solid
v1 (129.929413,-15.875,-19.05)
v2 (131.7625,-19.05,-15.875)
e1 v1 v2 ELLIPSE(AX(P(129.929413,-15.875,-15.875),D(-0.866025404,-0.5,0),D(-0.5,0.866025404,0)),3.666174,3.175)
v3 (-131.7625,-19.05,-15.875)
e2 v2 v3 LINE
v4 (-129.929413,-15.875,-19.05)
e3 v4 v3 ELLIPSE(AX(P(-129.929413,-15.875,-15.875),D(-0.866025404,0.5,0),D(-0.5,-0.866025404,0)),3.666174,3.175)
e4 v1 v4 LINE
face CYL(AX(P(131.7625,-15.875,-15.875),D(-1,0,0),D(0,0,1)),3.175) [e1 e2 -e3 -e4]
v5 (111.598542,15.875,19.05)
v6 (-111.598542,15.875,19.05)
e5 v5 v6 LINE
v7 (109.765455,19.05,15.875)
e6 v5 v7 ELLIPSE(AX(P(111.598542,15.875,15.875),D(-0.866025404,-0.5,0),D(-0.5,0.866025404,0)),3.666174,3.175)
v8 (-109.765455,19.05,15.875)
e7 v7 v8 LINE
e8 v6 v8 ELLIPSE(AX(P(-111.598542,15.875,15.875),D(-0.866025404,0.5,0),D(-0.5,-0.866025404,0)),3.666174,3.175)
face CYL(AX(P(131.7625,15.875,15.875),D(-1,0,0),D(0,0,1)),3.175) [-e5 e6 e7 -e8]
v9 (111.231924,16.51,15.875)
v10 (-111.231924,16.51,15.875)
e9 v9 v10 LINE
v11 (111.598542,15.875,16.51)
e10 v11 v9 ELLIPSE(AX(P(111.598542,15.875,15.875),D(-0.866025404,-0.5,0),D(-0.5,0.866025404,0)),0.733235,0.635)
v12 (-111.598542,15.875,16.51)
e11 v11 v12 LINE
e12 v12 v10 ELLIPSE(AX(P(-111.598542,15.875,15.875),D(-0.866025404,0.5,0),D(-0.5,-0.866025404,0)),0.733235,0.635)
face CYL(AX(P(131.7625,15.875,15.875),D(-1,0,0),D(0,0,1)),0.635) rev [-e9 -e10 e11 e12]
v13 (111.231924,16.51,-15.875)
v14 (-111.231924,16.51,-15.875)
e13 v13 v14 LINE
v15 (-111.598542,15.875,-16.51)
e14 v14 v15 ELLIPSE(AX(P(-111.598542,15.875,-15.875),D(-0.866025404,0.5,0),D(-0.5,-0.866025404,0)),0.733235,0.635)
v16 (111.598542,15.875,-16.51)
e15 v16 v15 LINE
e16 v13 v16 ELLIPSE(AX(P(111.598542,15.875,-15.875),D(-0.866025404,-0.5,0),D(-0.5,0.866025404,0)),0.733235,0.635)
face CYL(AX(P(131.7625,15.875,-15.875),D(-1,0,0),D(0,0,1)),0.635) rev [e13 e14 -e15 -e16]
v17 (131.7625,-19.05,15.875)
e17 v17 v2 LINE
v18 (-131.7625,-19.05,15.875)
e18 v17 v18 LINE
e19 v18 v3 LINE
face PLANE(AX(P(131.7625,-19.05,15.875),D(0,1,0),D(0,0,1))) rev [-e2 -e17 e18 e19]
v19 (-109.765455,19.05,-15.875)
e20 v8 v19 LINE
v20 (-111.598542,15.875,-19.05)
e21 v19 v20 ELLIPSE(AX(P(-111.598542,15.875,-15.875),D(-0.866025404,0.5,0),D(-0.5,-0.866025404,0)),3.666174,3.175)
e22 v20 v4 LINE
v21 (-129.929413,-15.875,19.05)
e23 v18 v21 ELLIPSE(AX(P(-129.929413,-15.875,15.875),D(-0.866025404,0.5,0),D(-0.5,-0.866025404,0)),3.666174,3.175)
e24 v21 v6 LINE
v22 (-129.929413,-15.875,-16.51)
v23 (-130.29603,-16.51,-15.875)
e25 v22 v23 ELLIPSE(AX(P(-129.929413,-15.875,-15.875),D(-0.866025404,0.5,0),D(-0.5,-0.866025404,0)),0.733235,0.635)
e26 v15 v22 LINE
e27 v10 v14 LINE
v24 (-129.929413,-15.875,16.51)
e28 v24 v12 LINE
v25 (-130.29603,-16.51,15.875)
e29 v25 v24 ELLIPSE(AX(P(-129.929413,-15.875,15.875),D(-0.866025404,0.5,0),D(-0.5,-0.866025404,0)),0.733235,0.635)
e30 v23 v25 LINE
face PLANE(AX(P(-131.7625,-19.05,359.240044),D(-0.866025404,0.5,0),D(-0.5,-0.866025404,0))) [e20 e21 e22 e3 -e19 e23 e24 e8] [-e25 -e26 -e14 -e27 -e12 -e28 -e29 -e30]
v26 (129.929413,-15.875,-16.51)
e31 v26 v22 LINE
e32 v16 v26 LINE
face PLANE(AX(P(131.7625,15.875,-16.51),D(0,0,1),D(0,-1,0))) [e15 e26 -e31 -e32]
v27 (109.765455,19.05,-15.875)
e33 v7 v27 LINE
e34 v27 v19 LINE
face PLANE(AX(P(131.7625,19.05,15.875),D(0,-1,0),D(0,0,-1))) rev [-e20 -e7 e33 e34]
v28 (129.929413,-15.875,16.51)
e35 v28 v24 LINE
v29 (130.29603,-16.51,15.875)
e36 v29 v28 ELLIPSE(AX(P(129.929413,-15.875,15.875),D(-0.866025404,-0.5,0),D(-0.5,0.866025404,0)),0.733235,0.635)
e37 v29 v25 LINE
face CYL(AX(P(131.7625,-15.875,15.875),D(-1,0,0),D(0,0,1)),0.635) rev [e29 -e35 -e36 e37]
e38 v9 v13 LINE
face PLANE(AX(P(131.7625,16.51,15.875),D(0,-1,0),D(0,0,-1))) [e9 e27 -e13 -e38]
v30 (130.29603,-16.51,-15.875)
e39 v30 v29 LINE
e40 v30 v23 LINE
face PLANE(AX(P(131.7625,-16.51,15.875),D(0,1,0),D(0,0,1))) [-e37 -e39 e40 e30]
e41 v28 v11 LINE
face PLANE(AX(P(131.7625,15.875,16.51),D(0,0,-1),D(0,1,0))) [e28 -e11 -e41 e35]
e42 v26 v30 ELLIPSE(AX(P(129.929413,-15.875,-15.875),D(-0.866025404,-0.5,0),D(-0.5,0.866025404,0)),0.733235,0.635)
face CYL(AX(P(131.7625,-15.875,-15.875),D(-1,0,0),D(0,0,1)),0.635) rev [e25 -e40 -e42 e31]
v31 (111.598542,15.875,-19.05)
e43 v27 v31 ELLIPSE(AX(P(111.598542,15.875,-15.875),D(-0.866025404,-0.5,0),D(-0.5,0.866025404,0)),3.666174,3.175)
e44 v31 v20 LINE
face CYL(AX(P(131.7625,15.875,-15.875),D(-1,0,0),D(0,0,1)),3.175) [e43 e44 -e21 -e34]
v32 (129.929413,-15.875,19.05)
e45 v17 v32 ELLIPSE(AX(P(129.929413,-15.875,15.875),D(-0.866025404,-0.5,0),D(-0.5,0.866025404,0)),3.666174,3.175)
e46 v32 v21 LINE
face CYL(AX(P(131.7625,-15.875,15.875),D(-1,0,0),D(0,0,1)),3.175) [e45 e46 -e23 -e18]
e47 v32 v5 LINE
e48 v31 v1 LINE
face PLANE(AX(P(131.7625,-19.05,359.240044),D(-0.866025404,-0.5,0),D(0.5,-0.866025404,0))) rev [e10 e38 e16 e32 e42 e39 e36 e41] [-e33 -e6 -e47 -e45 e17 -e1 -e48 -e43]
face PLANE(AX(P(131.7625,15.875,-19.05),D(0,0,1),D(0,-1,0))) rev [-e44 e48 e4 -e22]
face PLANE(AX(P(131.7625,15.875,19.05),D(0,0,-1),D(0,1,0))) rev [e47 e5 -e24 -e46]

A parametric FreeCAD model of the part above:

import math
import FreeCAD as App
import Part
import Sketcher
from FreeCAD import Vector
Q = App.Units.Quantity


def add_polygon(sketch, points):
    """Adds a closed chain of lines whose ends are joined by coincident constraints."""
    first, n = sketch.GeometryCount, len(points)
    for a, b in zip(points, points[1:] + points[:1]):
        sketch.addGeometry(Part.LineSegment(App.Vector(*a, 0), App.Vector(*b, 0)), False)
    for i in range(n):
        sketch.addConstraint(Sketcher.Constraint("Coincident", first + i, 2, first + (i + 1) % n, 1))

doc = App.newDocument("Part")
body = doc.addObject("PartDesign::Body", "Body")

# Sketch on YZ plane
sketch1 = body.newObject("Sketcher::SketchObject", "Sketch")
sketch1.AttachmentSupport = (doc.getObject("YZ_Plane"), [""])
sketch1.MapMode = "FlatFace"
sketch1.addGeometry(Part.LineSegment(Vector(19.1, -15.9, 0), Vector(19.1, 15.9, 0)), False)
sketch1.addGeometry(Part.ArcOfCircle(Part.Circle(Vector(15.9, 15.9, 0), Vector(0, 0, 1), 3.2), math.radians(0), math.radians(90)), False)
sketch1.addGeometry(Part.LineSegment(Vector(15.9, 19.1, 0), Vector(-15.9, 19.1, 0)), False)
sketch1.addGeometry(Part.ArcOfCircle(Part.Circle(Vector(-15.9, 15.9, 0), Vector(0, 0, 1), 3.2), math.radians(90), math.radians(180)), False)
sketch1.addGeometry(Part.LineSegment(Vector(-19.1, 15.9, 0), Vector(-19.1, -15.9, 0)), False)
sketch1.addGeometry(Part.ArcOfCircle(Part.Circle(Vector(-15.9, -15.9, 0), Vector(0, 0, 1), 3.2), math.radians(-180), math.radians(-90)), False)
sketch1.addGeometry(Part.LineSegment(Vector(-15.9, -19.1, 0), Vector(15.9, -19.1, 0)), False)
sketch1.addGeometry(Part.ArcOfCircle(Part.Circle(Vector(15.9, -15.9, 0), Vector(0, 0, 1), 3.2), math.radians(-90), math.radians(0)), False)
sketch1.addGeometry(Part.LineSegment(Vector(16.5, 15.9, 0), Vector(16.5, -15.9, 0)), False)
sketch1.addGeometry(Part.ArcOfCircle(Part.Circle(Vector(15.9, -15.9, 0), Vector(0, 0, 1), 0.6), math.radians(-90), math.radians(0)), False)
sketch1.addGeometry(Part.LineSegment(Vector(15.9, -16.5, 0), Vector(-15.9, -16.5, 0)), False)
sketch1.addGeometry(Part.ArcOfCircle(Part.Circle(Vector(-15.9, -15.9, 0), Vector(0, 0, 1), 0.6), math.radians(180), math.radians(270)), False)
sketch1.addGeometry(Part.LineSegment(Vector(-16.5, -15.9, 0), Vector(-16.5, 15.9, 0)), False)
sketch1.addGeometry(Part.ArcOfCircle(Part.Circle(Vector(-15.9, 15.9, 0), Vector(0, 0, 1), 0.6), math.radians(90), math.radians(180)), False)
sketch1.addGeometry(Part.LineSegment(Vector(-15.9, 16.5, 0), Vector(15.9, 16.5, 0)), False)
sketch1.addGeometry(Part.ArcOfCircle(Part.Circle(Vector(15.9, 15.9, 0), Vector(0, 0, 1), 0.6), math.radians(0), math.radians(90)), False)
sketch1.addConstraint(Sketcher.Constraint("Tangent", 0, 2, 1, 1))
sketch1.addConstraint(Sketcher.Constraint("Tangent", 1, 2, 2, 1))
sketch1.addConstraint(Sketcher.Constraint("Tangent", 2, 2, 3, 1))
sketch1.addConstraint(Sketcher.Constraint("Tangent", 3, 2, 4, 1))
sketch1.addConstraint(Sketcher.Constraint("Tangent", 4, 2, 5, 1))
sketch1.addConstraint(Sketcher.Constraint("Tangent", 5, 2, 6, 1))
sketch1.addConstraint(Sketcher.Constraint("Tangent", 6, 2, 7, 1))
sketch1.addConstraint(Sketcher.Constraint("Tangent", 7, 2, 0, 1))
sketch1.addConstraint(Sketcher.Constraint("Tangent", 8, 2, 9, 2))
sketch1.addConstraint(Sketcher.Constraint("Tangent", 9, 1, 10, 1))
sketch1.addConstraint(Sketcher.Constraint("Tangent", 10, 2, 11, 2))
sketch1.addConstraint(Sketcher.Constraint("Tangent", 11, 1, 12, 1))
sketch1.addConstraint(Sketcher.Constraint("Tangent", 12, 2, 13, 2))
sketch1.addConstraint(Sketcher.Constraint("Tangent", 13, 1, 14, 1))
sketch1.addConstraint(Sketcher.Constraint("Tangent", 14, 2, 15, 2))
sketch1.addConstraint(Sketcher.Constraint("Tangent", 15, 1, 8, 1))
sketch1.addConstraint(Sketcher.Constraint("Vertical", 0))
sketch1.addConstraint(Sketcher.Constraint("Horizontal", 2))
sketch1.addConstraint(Sketcher.Constraint("Vertical", 4))
sketch1.addConstraint(Sketcher.Constraint("Horizontal", 6))
sketch1.addConstraint(Sketcher.Constraint("Vertical", 8))
sketch1.addConstraint(Sketcher.Constraint("Horizontal", 10))
sketch1.addConstraint(Sketcher.Constraint("Vertical", 12))
sketch1.addConstraint(Sketcher.Constraint("Horizontal", 14))
sketch1.addConstraint(Sketcher.Constraint("Coincident", 9, 3, 7, 3))
sketch1.addConstraint(Sketcher.Constraint("Coincident", 11, 3, 5, 3))
sketch1.addConstraint(Sketcher.Constraint("Coincident", 13, 3, 3, 3))
sketch1.addConstraint(Sketcher.Constraint("Equal", 1, 3))
sketch1.addConstraint(Sketcher.Constraint("Equal", 3, 5))
sketch1.addConstraint(Sketcher.Constraint("Equal", 5, 7))
sketch1.addConstraint(Sketcher.Constraint("Equal", 13, 15))
sketch1.addConstraint(Sketcher.Constraint("Symmetric", 1, 3, 5, 3, -1, 1))
sketch1.addConstraint(Sketcher.Constraint("Equal", 14, 0))
sketch1.addConstraint(Sketcher.Constraint("Radius", 1, Q("0.125 in")))
sketch1.addConstraint(Sketcher.Constraint("Radius", 9, Q("0.025 in")))
sketch1.addConstraint(Sketcher.Constraint("DistanceX", 2, 2, 2, 1, Q("1.25 in")))
pad1 = body.newObject("PartDesign::Pad", "Pad")
pad1.Profile = sketch1
pad1.Length = Q("10.375 in")
pad1.Midplane = True

# Sketch on XY plane
sketch2 = body.newObject("Sketcher::SketchObject", "Sketch001")
sketch2.AttachmentSupport = (doc.getObject("XY_Plane"), [""])
sketch2.MapMode = "FlatFace"
sketch2.AttachmentOffset = App.Placement(Vector(0, 0, 0.75 * 25.4), App.Rotation())
add_polygon(sketch2, [(-403, -489), (-132, -19), (-110, 19), (161, 489), (-778, 1031), (-1343, 54)])  # lines 0-5
sketch2.addConstraint(Sketcher.Constraint("Parallel", 0, 1))
sketch2.addConstraint(Sketcher.Constraint("Parallel", 1, 2))
sketch2.addConstraint(Sketcher.Constraint("Perpendicular", 2, 3))
sketch2.addConstraint(Sketcher.Constraint("Perpendicular", 3, 4))
sketch2.addConstraint(Sketcher.Constraint("Perpendicular", 4, 5))
sketch2.addConstraint(Sketcher.Constraint("Equal", 0, 2))
sketch2.addConstraint(Sketcher.Constraint("Angle", 0, Q("60 deg")))
sketch2.addConstraint(Sketcher.Constraint("DistanceY", 0, 2, 1, 2, Q("1.5 in")))
sketch2.addConstraint(Sketcher.Constraint("DistanceY", 0, 2, -1, 1, Q("0.75 in")))
sketch2.addConstraint(Sketcher.Constraint("DistanceX", 0, 2, -1, 1, Q("5.1875 in")))
sketch2.addConstraint(Sketcher.Constraint("DistanceY", 4, 2, 2, 2, Q("17.1362002 in")))
sketch2.addConstraint(Sketcher.Constraint("Distance", 3, Q("1085.05989 mm")))
pocket1 = body.newObject("PartDesign::Pocket", "Pocket")
pocket1.Profile = sketch2
pocket1.Type = "ThroughAll"
pocket1.Midplane = True

# Sketch on XY plane
sketch3 = body.newObject("Sketcher::SketchObject", "Sketch002")
sketch3.AttachmentSupport = (doc.getObject("XY_Plane"), [""])
sketch3.MapMode = "FlatFace"
sketch3.AttachmentOffset = App.Placement(Vector(0, 0, 0.75 * 25.4), App.Rotation())
add_polygon(sketch3, [(132, -19), (403, -489), (1343, 54), (778, 1031), (-161, 489), (110, 19)])  # lines 0-5
sketch3.addConstraint(Sketcher.Constraint("Perpendicular", 0, 1))
sketch3.addConstraint(Sketcher.Constraint("Perpendicular", 1, 2))
sketch3.addConstraint(Sketcher.Constraint("Perpendicular", 2, 3))
sketch3.addConstraint(Sketcher.Constraint("Perpendicular", 3, 4))
sketch3.addConstraint(Sketcher.Constraint("Parallel", 4, 5))
sketch3.addConstraint(Sketcher.Constraint("Equal", 0, 4))
sketch3.addConstraint(Sketcher.Constraint("Angle", 0, Q("-60 deg")))
sketch3.addConstraint(Sketcher.Constraint("DistanceY", 5, 2, 4, 2, Q("1.5 in")))
sketch3.addConstraint(Sketcher.Constraint("DistanceY", -1, 1, 4, 2, Q("0.75 in")))
sketch3.addConstraint(Sketcher.Constraint("DistanceX", -1, 1, 5, 2, Q("5.1875 in")))
sketch3.addConstraint(Sketcher.Constraint("DistanceY", 1, 2, 3, 2, Q("17.1362002 in")))
sketch3.addConstraint(Sketcher.Constraint("Distance", 1, Q("1085.05989 mm")))
pocket2 = body.newObject("PartDesign::Pocket", "Pocket001")
pocket2.Profile = sketch3
pocket2.Type = "ThroughAll"
pocket2.Midplane = True

doc.recompute()
